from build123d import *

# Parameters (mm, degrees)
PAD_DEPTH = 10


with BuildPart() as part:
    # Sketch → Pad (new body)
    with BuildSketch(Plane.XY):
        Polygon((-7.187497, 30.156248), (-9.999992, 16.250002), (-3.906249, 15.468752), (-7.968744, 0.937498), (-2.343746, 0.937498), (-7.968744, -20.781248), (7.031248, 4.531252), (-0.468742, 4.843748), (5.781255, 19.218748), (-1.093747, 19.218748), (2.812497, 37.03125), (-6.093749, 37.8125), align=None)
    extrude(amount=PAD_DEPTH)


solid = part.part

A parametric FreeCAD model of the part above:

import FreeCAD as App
import Part
import Sketcher


def add_polygon(sketch, points):
    """Adds a closed chain of lines whose ends are joined by coincident constraints."""
    first, n = sketch.GeometryCount, len(points)
    for a, b in zip(points, points[1:] + points[:1]):
        sketch.addGeometry(Part.LineSegment(App.Vector(*a, 0), App.Vector(*b, 0)), False)
    for i in range(n):
        sketch.addConstraint(Sketcher.Constraint("Coincident", first + i, 2, first + (i + 1) % n, 1))

doc = App.newDocument("Part")
params = doc.addObject("Spreadsheet::Sheet", "Params")
for row, (alias, value) in enumerate([
    ("pad1_length", "10 mm"),
], start=1):
    params.set(f"A{row}", alias)
    params.set(f"B{row}", "=" + value)
    params.setAlias(f"B{row}", alias)

body = doc.addObject("PartDesign::Body", "Body")

# Sketch on XY plane
sketch1 = body.newObject("Sketcher::SketchObject", "Sketch")
sketch1.AttachmentSupport = (doc.getObject("XY_Plane"), [""])
sketch1.MapMode = "FlatFace"
add_polygon(sketch1, [(-7.187497, 30.156248), (-9.999992, 16.250002), (-3.906249, 15.468752), (-7.968744, 0.937498), (-2.343746, 0.937498), (-7.968744, -20.781248), (7.031248, 4.531252), (-0.468742, 4.843748), (5.781255, 19.218748), (-1.093747, 19.218748), (2.812497, 37.03125), (-6.093749, 37.8125)])  # lines 0-11
sketch1.addConstraint(Sketcher.Constraint("Horizontal", 3))
sketch1.addConstraint(Sketcher.Constraint("Horizontal", 8))
sketch1.addConstraint(Sketcher.Constraint("Vertical", 2, 2, 4, 2))
sketch1.addConstraint(Sketcher.Constraint("DistanceY", -1, 1, 0, 2, 16.250002))
sketch1.addConstraint(Sketcher.Constraint("DistanceY", 4, 2, 1, 2, 36.25))
sketch1.addConstraint(Sketcher.Constraint("DistanceY", 6, 2, 7, 2, 14.375))
sketch1.addConstraint(Sketcher.Constraint("DistanceX", 3, 2, 7, 2, 8.125001))
sketch1.addConstraint(Sketcher.Constraint("DistanceY", 11, 2, 9, 2, 6.875002))
sketch1.addConstraint(Sketcher.Constraint("DistanceY", -1, 1, 2, 2, 0.937498))
sketch1.addConstraint(Sketcher.Constraint("DistanceY", -1, 1, 10, 2, 37.8125))
sketch1.addConstraint(Sketcher.Constraint("DistanceY", 5, 2, 1, 2, 10.9375))
sketch1.addConstraint(Sketcher.Constraint("DistanceX", 1, 2, 8, 2, 2.812502))
sketch1.addConstraint(Sketcher.Constraint("DistanceY", 7, 2, 9, 2, 17.812502))
sketch1.addConstraint(Sketcher.Constraint("DistanceX", 10, 2, 1, 2, 2.1875))
sketch1.addConstraint(Sketcher.Constraint("Distance", 1, 6.143619))
sketch1.addConstraint(Sketcher.Constraint("Distance", 4, 22.435341))
sketch1.addConstraint(Sketcher.Constraint("Distance", 5, 29.423161))
sketch1.addConstraint(Sketcher.Constraint("Distance", 7, 15.674919))
sketch1.addConstraint(Sketcher.Constraint("Distance", 9, 18.235788))
sketch1.addConstraint(Sketcher.Constraint("DistanceX", 3, 1, 3, 2, 5.624998))
sketch1.addConstraint(Sketcher.Constraint("DistanceX", 8, 2, 8, 1, 6.875002))
sketch1.addConstraint(Sketcher.Constraint("DistanceX", 1, 2, -1, 1, 3.906249))
sketch1.addConstraint(Sketcher.Constraint("DistanceY", -1, 1, 7, 2, 19.218748))
sketch1.addConstraint(Sketcher.Constraint("DistanceX", 11, 2, 8, 2, 6.09375))
pad1 = body.newObject("PartDesign::Pad", "Pad")
pad1.Profile = sketch1
pad1.setExpression("Length", "Params.pad1_length")

doc.recompute()
